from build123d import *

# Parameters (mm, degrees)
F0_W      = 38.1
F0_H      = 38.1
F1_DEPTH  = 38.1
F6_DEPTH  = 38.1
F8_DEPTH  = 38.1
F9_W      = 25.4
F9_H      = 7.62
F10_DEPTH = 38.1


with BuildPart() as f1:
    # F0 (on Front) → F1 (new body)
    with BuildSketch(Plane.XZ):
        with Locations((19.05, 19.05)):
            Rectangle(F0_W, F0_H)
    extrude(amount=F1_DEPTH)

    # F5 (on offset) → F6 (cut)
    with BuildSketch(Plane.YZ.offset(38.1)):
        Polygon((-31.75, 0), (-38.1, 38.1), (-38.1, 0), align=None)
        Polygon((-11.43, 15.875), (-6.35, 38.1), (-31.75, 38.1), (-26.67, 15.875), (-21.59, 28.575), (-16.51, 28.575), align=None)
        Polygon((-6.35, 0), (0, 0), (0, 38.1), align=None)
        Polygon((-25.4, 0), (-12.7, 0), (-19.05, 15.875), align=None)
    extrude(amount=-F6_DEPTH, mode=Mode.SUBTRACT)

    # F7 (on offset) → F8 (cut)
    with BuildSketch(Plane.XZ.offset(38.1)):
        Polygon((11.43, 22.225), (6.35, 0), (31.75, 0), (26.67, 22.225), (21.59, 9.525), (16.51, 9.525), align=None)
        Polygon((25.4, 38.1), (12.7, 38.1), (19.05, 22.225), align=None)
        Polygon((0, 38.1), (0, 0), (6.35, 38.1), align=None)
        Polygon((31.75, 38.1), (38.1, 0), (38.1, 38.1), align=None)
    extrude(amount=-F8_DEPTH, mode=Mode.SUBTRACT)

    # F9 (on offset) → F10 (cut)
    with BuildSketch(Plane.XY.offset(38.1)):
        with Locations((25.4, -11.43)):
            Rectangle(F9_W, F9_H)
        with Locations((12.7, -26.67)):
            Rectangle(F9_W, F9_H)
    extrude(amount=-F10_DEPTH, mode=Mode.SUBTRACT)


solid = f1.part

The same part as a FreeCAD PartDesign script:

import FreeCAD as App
import Part
import Sketcher

V = App.Vector
Q = App.Units.Quantity

doc = App.newDocument("Part")
body = doc.addObject("PartDesign::Body", "Body")

# Sketch on XZ plane
sketch1 = body.newObject("Sketcher::SketchObject", "Sketch")
sketch1.AttachmentSupport = (doc.getObject("XZ_Plane"), [""])
sketch1.MapMode = "FlatFace"
sketch1.addGeometry(Part.LineSegment(V(0, 38, 0), V(0, 0, 0)), False)
sketch1.addGeometry(Part.LineSegment(V(0, 0, 0), V(38, 0, 0)), False)
sketch1.addGeometry(Part.LineSegment(V(38, 0, 0), V(38, 38, 0)), False)
sketch1.addGeometry(Part.LineSegment(V(38, 38, 0), V(0, 38, 0)), False)
sketch1.addConstraint(Sketcher.Constraint("Coincident", 0, 2, 1, 1))
sketch1.addConstraint(Sketcher.Constraint("Coincident", 1, 2, 2, 1))
sketch1.addConstraint(Sketcher.Constraint("Coincident", 2, 2, 3, 1))
sketch1.addConstraint(Sketcher.Constraint("Coincident", 3, 2, 0, 1))
sketch1.addConstraint(Sketcher.Constraint("Vertical", 0))
sketch1.addConstraint(Sketcher.Constraint("Horizontal", 1))
sketch1.addConstraint(Sketcher.Constraint("Vertical", 2))
sketch1.addConstraint(Sketcher.Constraint("Horizontal", 3))
sketch1.addConstraint(Sketcher.Constraint("Coincident", 0, 2, -1, 1))
sketch1.addConstraint(Sketcher.Constraint("Equal", 3, 0))
sketch1.addConstraint(Sketcher.Constraint("DistanceX", 1, 1, 1, 2, Q("1.5 in")))
pad1 = body.newObject("PartDesign::Pad", "Pad")
pad1.Profile = sketch1
pad1.Length = Q("1.5 in")

# Sketch on YZ plane
sketch2 = body.newObject("Sketcher::SketchObject", "Sketch001")
sketch2.AttachmentSupport = (doc.getObject("YZ_Plane"), [""])
sketch2.MapMode = "FlatFace"
sketch2.AttachmentOffset = App.Placement(V(0, 0, 1.5 * 25.4), App.Rotation())
sketch2.addGeometry(Part.LineSegment(V(-32, 0, 0), V(-38, 38, 0)), False)
sketch2.addGeometry(Part.LineSegment(V(-38, 38, 0), V(-38, 0, 0)), False)
sketch2.addGeometry(Part.LineSegment(V(-38, 0, 0), V(-32, 0, 0)), False)
sketch2.addGeometry(Part.LineSegment(V(-11, 16, 0), V(-6, 38, 0)), False)
sketch2.addGeometry(Part.LineSegment(V(-6, 38, 0), V(-32, 38, 0)), False)
sketch2.addGeometry(Part.LineSegment(V(-32, 38, 0), V(-27, 16, 0)), False)
sketch2.addGeometry(Part.LineSegment(V(-27, 16, 0), V(-22, 29, 0)), False)
sketch2.addGeometry(Part.LineSegment(V(-22, 29, 0), V(-17, 29, 0)), False)
sketch2.addGeometry(Part.LineSegment(V(-17, 29, 0), V(-11, 16, 0)), False)
sketch2.addGeometry(Part.LineSegment(V(-6, 0, 0), V(0, 0, 0)), False)
sketch2.addGeometry(Part.LineSegment(V(0, 0, 0), V(0, 38, 0)), False)
sketch2.addGeometry(Part.LineSegment(V(0, 38, 0), V(-6, 0, 0)), False)
sketch2.addGeometry(Part.LineSegment(V(-25, 0, 0), V(-13, 0, 0)), False)
sketch2.addGeometry(Part.LineSegment(V(-13, 0, 0), V(-19, 16, 0)), False)
sketch2.addGeometry(Part.LineSegment(V(-19, 16, 0), V(-25, 0, 0)), False)
sketch2.addConstraint(Sketcher.Constraint("Coincident", 0, 2, 1, 1))
sketch2.addConstraint(Sketcher.Constraint("Coincident", 1, 2, 2, 1))
sketch2.addConstraint(Sketcher.Constraint("Coincident", 2, 2, 0, 1))
sketch2.addConstraint(Sketcher.Constraint("Coincident", 3, 2, 4, 1))
sketch2.addConstraint(Sketcher.Constraint("Coincident", 4, 2, 5, 1))
sketch2.addConstraint(Sketcher.Constraint("Coincident", 5, 2, 6, 1))
sketch2.addConstraint(Sketcher.Constraint("Coincident", 6, 2, 7, 1))
sketch2.addConstraint(Sketcher.Constraint("Coincident", 7, 2, 8, 1))
sketch2.addConstraint(Sketcher.Constraint("Coincident", 8, 2, 3, 1))
sketch2.addConstraint(Sketcher.Constraint("Coincident", 9, 2, 10, 1))
sketch2.addConstraint(Sketcher.Constraint("Coincident", 10, 2, 11, 1))
sketch2.addConstraint(Sketcher.Constraint("Coincident", 11, 2, 9, 1))
sketch2.addConstraint(Sketcher.Constraint("Coincident", 12, 2, 13, 1))
sketch2.addConstraint(Sketcher.Constraint("Coincident", 13, 2, 14, 1))
sketch2.addConstraint(Sketcher.Constraint("Coincident", 14, 2, 12, 1))
sketch2.addConstraint(Sketcher.Constraint("Vertical", 1))
sketch2.addConstraint(Sketcher.Constraint("Horizontal", 2))
sketch2.addConstraint(Sketcher.Constraint("Horizontal", 4))
sketch2.addConstraint(Sketcher.Constraint("Horizontal", 7))
sketch2.addConstraint(Sketcher.Constraint("Horizontal", 9))
sketch2.addConstraint(Sketcher.Constraint("Vertical", 10))
sketch2.addConstraint(Sketcher.Constraint("Horizontal", 12))
sketch2.addConstraint(Sketcher.Constraint("Coincident", 9, 2, -1, 1))
sketch2.addConstraint(Sketcher.Constraint("PointOnObject", 1, 2, -1))
sketch2.addConstraint(Sketcher.Constraint("PointOnObject", 12, 2, -1))
sketch2.addConstraint(Sketcher.Constraint("Parallel", 8, 13))
sketch2.addConstraint(Sketcher.Constraint("Parallel", 6, 14))
sketch2.addConstraint(Sketcher.Constraint("Horizontal", 0, 2, 3, 2))
sketch2.addConstraint(Sketcher.Constraint("Horizontal", 5, 2, 8, 2))
sketch2.addConstraint(Sketcher.Constraint("Horizontal", 4, 2, 10, 2))
sketch2.addConstraint(Sketcher.Constraint("Horizontal", 8, 2, 13, 2))
sketch2.addConstraint(Sketcher.Constraint("Vertical", 2, 2, 4, 2))
sketch2.addConstraint(Sketcher.Constraint("Vertical", 3, 2, 11, 2))
sketch2.addConstraint(Sketcher.Constraint("Equal", 2, 9))
sketch2.addConstraint(Sketcher.Constraint("Equal", 3, 5))
sketch2.addConstraint(Sketcher.Constraint("Equal", 6, 8))
sketch2.addConstraint(Sketcher.Constraint("DistanceX", 4, 2, 4, 1, Q("1 in")))
sketch2.addConstraint(Sketcher.Constraint("DistanceX", 7, 1, 7, 2, Q("0.2 in")))
sketch2.addConstraint(Sketcher.Constraint("DistanceX", 12, 1, 12, 2, Q("0.5 in")))
sketch2.addConstraint(Sketcher.Constraint("DistanceY", 1, 2, 1, 1, Q("1.5 in")))
sketch2.addConstraint(Sketcher.Constraint("DistanceX", 14, 2, -1, 1, Q("1 in")))
sketch2.addConstraint(Sketcher.Constraint("DistanceX", 2, 1, 2, 2, Q("0.25 in")))
sketch2.addConstraint(Sketcher.Constraint("DistanceX", 2, 2, 5, 2, Q("0.2 in")))
sketch2.addConstraint(Sketcher.Constraint("DistanceY", 5, 2, 6, 2, Q("0.5 in")))
pocket1 = body.newObject("PartDesign::Pocket", "Pocket")
pocket1.Profile = sketch2
pocket1.Length = Q("1.5 in")

# Sketch on XZ plane
sketch3 = body.newObject("Sketcher::SketchObject", "Sketch002")
sketch3.AttachmentSupport = (doc.getObject("XZ_Plane"), [""])
sketch3.MapMode = "FlatFace"
sketch3.AttachmentOffset = App.Placement(V(0, 0, 1.5 * 25.4), App.Rotation())
sketch3.addGeometry(Part.LineSegment(V(11, 22, 0), V(6, 0, 0)), False)
sketch3.addGeometry(Part.LineSegment(V(6, 0, 0), V(32, 0, 0)), False)
sketch3.addGeometry(Part.LineSegment(V(32, 0, 0), V(27, 22, 0)), False)
sketch3.addGeometry(Part.LineSegment(V(27, 22, 0), V(22, 10, 0)), False)
sketch3.addGeometry(Part.LineSegment(V(22, 10, 0), V(17, 10, 0)), False)
sketch3.addGeometry(Part.LineSegment(V(17, 10, 0), V(11, 22, 0)), False)
sketch3.addGeometry(Part.LineSegment(V(25, 38, 0), V(13, 38, 0)), False)
sketch3.addGeometry(Part.LineSegment(V(13, 38, 0), V(19, 22, 0)), False)
sketch3.addGeometry(Part.LineSegment(V(19, 22, 0), V(25, 38, 0)), False)
sketch3.addGeometry(Part.LineSegment(V(0, 38, 0), V(0, 0, 0)), False)
sketch3.addGeometry(Part.LineSegment(V(0, 0, 0), V(6, 38, 0)), False)
sketch3.addGeometry(Part.LineSegment(V(6, 38, 0), V(0, 38, 0)), False)
sketch3.addGeometry(Part.LineSegment(V(32, 38, 0), V(38, 0, 0)), False)
sketch3.addGeometry(Part.LineSegment(V(38, 0, 0), V(38, 38, 0)), False)
sketch3.addGeometry(Part.LineSegment(V(38, 38, 0), V(32, 38, 0)), False)
sketch3.addConstraint(Sketcher.Constraint("Coincident", 0, 2, 1, 1))
sketch3.addConstraint(Sketcher.Constraint("Coincident", 1, 2, 2, 1))
sketch3.addConstraint(Sketcher.Constraint("Coincident", 2, 2, 3, 1))
sketch3.addConstraint(Sketcher.Constraint("Coincident", 3, 2, 4, 1))
sketch3.addConstraint(Sketcher.Constraint("Coincident", 4, 2, 5, 1))
sketch3.addConstraint(Sketcher.Constraint("Coincident", 5, 2, 0, 1))
sketch3.addConstraint(Sketcher.Constraint("Coincident", 6, 2, 7, 1))
sketch3.addConstraint(Sketcher.Constraint("Coincident", 7, 2, 8, 1))
sketch3.addConstraint(Sketcher.Constraint("Coincident", 8, 2, 6, 1))
sketch3.addConstraint(Sketcher.Constraint("Coincident", 9, 2, 10, 1))
sketch3.addConstraint(Sketcher.Constraint("Coincident", 10, 2, 11, 1))
sketch3.addConstraint(Sketcher.Constraint("Coincident", 11, 2, 9, 1))
sketch3.addConstraint(Sketcher.Constraint("Coincident", 12, 2, 13, 1))
sketch3.addConstraint(Sketcher.Constraint("Coincident", 13, 2, 14, 1))
sketch3.addConstraint(Sketcher.Constraint("Coincident", 14, 2, 12, 1))
sketch3.addConstraint(Sketcher.Constraint("Horizontal", 1))
sketch3.addConstraint(Sketcher.Constraint("Horizontal", 4))
sketch3.addConstraint(Sketcher.Constraint("Horizontal", 6))
sketch3.addConstraint(Sketcher.Constraint("Vertical", 9))
sketch3.addConstraint(Sketcher.Constraint("Horizontal", 11))
sketch3.addConstraint(Sketcher.Constraint("Vertical", 13))
sketch3.addConstraint(Sketcher.Constraint("Horizontal", 14))
sketch3.addConstraint(Sketcher.Constraint("Coincident", 9, 2, -1, 1))
sketch3.addConstraint(Sketcher.Constraint("PointOnObject", 0, 2, -1))
sketch3.addConstraint(Sketcher.Constraint("PointOnObject", 12, 2, -1))
sketch3.addConstraint(Sketcher.Constraint("Parallel", 5, 7))
sketch3.addConstraint(Sketcher.Constraint("Parallel", 3, 8))
sketch3.addConstraint(Sketcher.Constraint("Horizontal", 2, 2, 5, 2))
sketch3.addConstraint(Sketcher.Constraint("Horizontal", 5, 2, 7, 2))
sketch3.addConstraint(Sketcher.Constraint("Horizontal", 8, 2, 10, 2))
sketch3.addConstraint(Sketcher.Constraint("Horizontal", 11, 2, 13, 2))
sketch3.addConstraint(Sketcher.Constraint("Vertical", 0, 2, 10, 2))
sketch3.addConstraint(Sketcher.Constraint("Vertical", 1, 2, 14, 2))
sketch3.addConstraint(Sketcher.Constraint("Equal", 11, 14))
sketch3.addConstraint(Sketcher.Constraint("Equal", 0, 2))
sketch3.addConstraint(Sketcher.Constraint("Equal", 3, 5))
sketch3.addConstraint(Sketcher.Constraint("DistanceX", 1, 1, 1, 2, Q("1 in")))
sketch3.addConstraint(Sketcher.Constraint("DistanceX", 4, 2, 4, 1, Q("0.2 in")))
sketch3.addConstraint(Sketcher.Constraint("DistanceX", 6, 2, 6, 1, Q("0.5 in")))
sketch3.addConstraint(Sketcher.Constraint("DistanceY", 9, 2, 9, 1, Q("1.5 in")))
sketch3.addConstraint(Sketcher.Constraint("DistanceX", -1, 1, 8, 2, Q("1 in")))
sketch3.addConstraint(Sketcher.Constraint("DistanceX", 6, 2, 13, 2, Q("1 in")))
sketch3.addConstraint(Sketcher.Constraint("DistanceX", 2, 2, 1, 2, Q("0.2 in")))
sketch3.addConstraint(Sketcher.Constraint("DistanceY", 3, 2, 2, 2, Q("0.5 in")))
pocket2 = body.newObject("PartDesign::Pocket", "Pocket001")
pocket2.Profile = sketch3
pocket2.Length = Q("1.5 in")

# Sketch on XY plane
sketch4 = body.newObject("Sketcher::SketchObject", "Sketch003")
sketch4.AttachmentSupport = (doc.getObject("XY_Plane"), [""])
sketch4.MapMode = "FlatFace"
sketch4.AttachmentOffset = App.Placement(V(0, 0, 1.5 * 25.4), App.Rotation())
sketch4.addGeometry(Part.LineSegment(V(13, -8, 0), V(13, -15, 0)), False)
sketch4.addGeometry(Part.LineSegment(V(13, -15, 0), V(38, -15, 0)), False)
sketch4.addGeometry(Part.LineSegment(V(38, -15, 0), V(38, -8, 0)), False)
sketch4.addGeometry(Part.LineSegment(V(38, -8, 0), V(13, -8, 0)), False)
sketch4.addGeometry(Part.LineSegment(V(0, -23, 0), V(0, -30, 0)), False)
sketch4.addGeometry(Part.LineSegment(V(0, -30, 0), V(25, -30, 0)), False)
sketch4.addGeometry(Part.LineSegment(V(25, -30, 0), V(25, -23, 0)), False)
sketch4.addGeometry(Part.LineSegment(V(25, -23, 0), V(0, -23, 0)), False)
sketch4.addConstraint(Sketcher.Constraint("Coincident", 0, 2, 1, 1))
sketch4.addConstraint(Sketcher.Constraint("Coincident", 1, 2, 2, 1))
sketch4.addConstraint(Sketcher.Constraint("Coincident", 2, 2, 3, 1))
sketch4.addConstraint(Sketcher.Constraint("Coincident", 3, 2, 0, 1))
sketch4.addConstraint(Sketcher.Constraint("Coincident", 4, 2, 5, 1))
sketch4.addConstraint(Sketcher.Constraint("Coincident", 5, 2, 6, 1))
sketch4.addConstraint(Sketcher.Constraint("Coincident", 6, 2, 7, 1))
sketch4.addConstraint(Sketcher.Constraint("Coincident", 7, 2, 4, 1))
sketch4.addConstraint(Sketcher.Constraint("Vertical", 0))
sketch4.addConstraint(Sketcher.Constraint("Horizontal", 1))
sketch4.addConstraint(Sketcher.Constraint("Vertical", 2))
sketch4.addConstraint(Sketcher.Constraint("Horizontal", 3))
sketch4.addConstraint(Sketcher.Constraint("Vertical", 4))
sketch4.addConstraint(Sketcher.Constraint("Horizontal", 5))
sketch4.addConstraint(Sketcher.Constraint("Vertical", 6))
sketch4.addConstraint(Sketcher.Constraint("Horizontal", 7))
sketch4.addConstraint(Sketcher.Constraint("PointOnObject", 4, 2, -2))
sketch4.addConstraint(Sketcher.Constraint("Equal", 3, 5))
sketch4.addConstraint(Sketcher.Constraint("Equal", 2, 4))
sketch4.addConstraint(Sketcher.Constraint("DistanceX", 1, 1, 1, 2, Q("1 in")))
sketch4.addConstraint(Sketcher.Constraint("DistanceY", 0, 2, 0, 1, Q("0.3 in")))
sketch4.addConstraint(Sketcher.Constraint("DistanceX", -1, 1, 0, 2, Q("0.5 in")))
sketch4.addConstraint(Sketcher.Constraint("DistanceY", 0, 2, -1, 1, Q("0.6 in")))
sketch4.addConstraint(Sketcher.Constraint("DistanceY", 4, 2, -1, 1, Q("1.2 in")))
pocket3 = body.newObject("PartDesign::Pocket", "Pocket002")
pocket3.Profile = sketch4
pocket3.Length = Q("1.5 in")

doc.recompute()
